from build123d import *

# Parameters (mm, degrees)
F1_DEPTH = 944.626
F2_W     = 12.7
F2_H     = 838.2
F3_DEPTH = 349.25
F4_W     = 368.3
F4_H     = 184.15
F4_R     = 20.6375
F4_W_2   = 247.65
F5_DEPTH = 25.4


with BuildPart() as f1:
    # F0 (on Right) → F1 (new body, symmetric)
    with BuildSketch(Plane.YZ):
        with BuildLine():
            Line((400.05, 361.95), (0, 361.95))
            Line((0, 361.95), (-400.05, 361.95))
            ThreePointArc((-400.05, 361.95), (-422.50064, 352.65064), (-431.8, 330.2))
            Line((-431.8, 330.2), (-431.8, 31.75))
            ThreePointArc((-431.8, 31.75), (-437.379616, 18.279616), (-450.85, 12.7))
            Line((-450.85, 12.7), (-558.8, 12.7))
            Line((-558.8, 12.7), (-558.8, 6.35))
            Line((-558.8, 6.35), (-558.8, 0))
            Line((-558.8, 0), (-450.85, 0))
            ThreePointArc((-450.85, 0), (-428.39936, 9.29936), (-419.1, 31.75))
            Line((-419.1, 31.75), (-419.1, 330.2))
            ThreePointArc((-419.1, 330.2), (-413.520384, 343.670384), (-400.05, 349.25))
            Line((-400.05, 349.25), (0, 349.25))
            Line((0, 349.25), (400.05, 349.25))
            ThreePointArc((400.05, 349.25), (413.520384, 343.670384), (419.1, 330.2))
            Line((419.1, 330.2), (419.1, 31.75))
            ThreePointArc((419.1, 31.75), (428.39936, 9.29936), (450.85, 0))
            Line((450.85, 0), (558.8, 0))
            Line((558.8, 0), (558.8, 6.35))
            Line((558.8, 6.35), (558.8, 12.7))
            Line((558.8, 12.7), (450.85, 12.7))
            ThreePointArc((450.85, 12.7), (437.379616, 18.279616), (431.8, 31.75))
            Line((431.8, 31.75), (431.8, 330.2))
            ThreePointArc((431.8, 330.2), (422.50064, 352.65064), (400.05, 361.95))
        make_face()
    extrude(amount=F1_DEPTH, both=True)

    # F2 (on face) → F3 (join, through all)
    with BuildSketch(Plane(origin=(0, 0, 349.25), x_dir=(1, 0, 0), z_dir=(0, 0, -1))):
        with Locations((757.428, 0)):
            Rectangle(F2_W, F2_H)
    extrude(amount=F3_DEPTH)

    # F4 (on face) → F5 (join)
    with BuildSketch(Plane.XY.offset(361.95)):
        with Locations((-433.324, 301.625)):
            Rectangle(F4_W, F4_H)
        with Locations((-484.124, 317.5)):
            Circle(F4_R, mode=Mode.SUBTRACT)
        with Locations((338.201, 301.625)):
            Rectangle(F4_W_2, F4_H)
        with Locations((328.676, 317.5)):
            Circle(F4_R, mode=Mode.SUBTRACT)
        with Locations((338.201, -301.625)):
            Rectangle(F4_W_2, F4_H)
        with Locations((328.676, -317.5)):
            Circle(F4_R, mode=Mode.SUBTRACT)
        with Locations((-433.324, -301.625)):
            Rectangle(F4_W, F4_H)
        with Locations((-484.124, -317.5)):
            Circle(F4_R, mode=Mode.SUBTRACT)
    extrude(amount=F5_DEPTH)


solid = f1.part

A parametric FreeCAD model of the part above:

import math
import FreeCAD as App
import Part
import Sketcher
Q = App.Units.Quantity

doc = App.newDocument("Part")
params = doc.addObject("Spreadsheet::Sheet", "Params")
for row, (alias, value) in enumerate([
    ("sketch1_radius", "1.25 in"),
    ("sketch1_radius2", "0.75 in"),
    ("sketch1_width", "31.5 in"),
    ("pad1_length", "74.38 in"),
    ("sketch2_height", "33 in"),
    ("sketch2_width", "0.5 in"),
    ("pad2_length", "13.75 in"),
    ("sketch3_diameter", "1.625 in"),
    ("sketch3_width", "14.5 in"),
    ("sketch3_width2", "9.75 in"),
    ("sketch3_height", "7.25 in"),
    ("pad3_length", "1 in"),
], start=1):
    params.set(f"A{row}", alias)
    params.set(f"B{row}", "=" + value)
    params.setAlias(f"B{row}", alias)

body = doc.addObject("PartDesign::Body", "Body")

sketch1 = body.newObject("Sketcher::SketchObject", "Sketch")
sketch1.AttachmentSupport = (doc.getObject("YZ_Plane"), [""])
sketch1.MapMode = "FlatFace"
sketch1.addGeometry(Part.LineSegment(App.Vector(400, 362, 0), App.Vector(-400, 362, 0)), False)
sketch1.addGeometry(Part.ArcOfCircle(Part.Circle(App.Vector(-400, 330, 0), App.Vector(0, 0, 1), 32), math.radians(90), math.radians(180)), False)
sketch1.addGeometry(Part.LineSegment(App.Vector(-432, 330, 0), App.Vector(-432, 32, 0)), False)
sketch1.addGeometry(Part.ArcOfCircle(Part.Circle(App.Vector(-451, 32, 0), App.Vector(0, 0, 1), 19), math.radians(-90), math.radians(0)), False)
sketch1.addGeometry(Part.LineSegment(App.Vector(-451, 13, 0), App.Vector(-559, 13, 0)), False)
sketch1.addGeometry(Part.LineSegment(App.Vector(-559, 13, 0), App.Vector(-559, 0, 0)), False)
sketch1.addGeometry(Part.LineSegment(App.Vector(-559, 0, 0), App.Vector(-451, 0, 0)), False)
sketch1.addGeometry(Part.ArcOfCircle(Part.Circle(App.Vector(-451, 32, 0), App.Vector(0, 0, 1), 32), math.radians(-90), math.radians(0)), False)
sketch1.addGeometry(Part.LineSegment(App.Vector(-419, 32, 0), App.Vector(-419, 330, 0)), False)
sketch1.addGeometry(Part.ArcOfCircle(Part.Circle(App.Vector(-400, 330, 0), App.Vector(0, 0, 1), 19), math.radians(90), math.radians(180)), False)
sketch1.addGeometry(Part.LineSegment(App.Vector(-400, 349, 0), App.Vector(400, 349, 0)), False)
sketch1.addGeometry(Part.ArcOfCircle(Part.Circle(App.Vector(400, 330, 0), App.Vector(0, 0, 1), 19), math.radians(0), math.radians(90)), False)
sketch1.addGeometry(Part.LineSegment(App.Vector(419, 330, 0), App.Vector(419, 32, 0)), False)
sketch1.addGeometry(Part.ArcOfCircle(Part.Circle(App.Vector(451, 32, 0), App.Vector(0, 0, 1), 32), math.radians(-180), math.radians(-90)), False)
sketch1.addGeometry(Part.LineSegment(App.Vector(451, 0, 0), App.Vector(559, 0, 0)), False)
sketch1.addGeometry(Part.LineSegment(App.Vector(559, 0, 0), App.Vector(559, 13, 0)), False)
sketch1.addGeometry(Part.LineSegment(App.Vector(559, 13, 0), App.Vector(451, 13, 0)), False)
sketch1.addGeometry(Part.ArcOfCircle(Part.Circle(App.Vector(451, 32, 0), App.Vector(0, 0, 1), 19), math.radians(-180), math.radians(-90)), False)
sketch1.addGeometry(Part.LineSegment(App.Vector(432, 32, 0), App.Vector(432, 330, 0)), False)
sketch1.addGeometry(Part.ArcOfCircle(Part.Circle(App.Vector(400, 330, 0), App.Vector(0, 0, 1), 32), math.radians(0), math.radians(90)), False)
sketch1.addConstraint(Sketcher.Constraint("Tangent", 0, 2, 1, 1))
sketch1.addConstraint(Sketcher.Constraint("Tangent", 1, 2, 2, 1))
sketch1.addConstraint(Sketcher.Constraint("Tangent", 2, 2, 3, 2))
sketch1.addConstraint(Sketcher.Constraint("Tangent", 3, 1, 4, 1))
sketch1.addConstraint(Sketcher.Constraint("Coincident", 4, 2, 5, 1))
sketch1.addConstraint(Sketcher.Constraint("Coincident", 5, 2, 6, 1))
sketch1.addConstraint(Sketcher.Constraint("Tangent", 6, 2, 7, 1))
sketch1.addConstraint(Sketcher.Constraint("Tangent", 7, 2, 8, 1))
sketch1.addConstraint(Sketcher.Constraint("Tangent", 8, 2, 9, 2))
sketch1.addConstraint(Sketcher.Constraint("Tangent", 9, 1, 10, 1))
sketch1.addConstraint(Sketcher.Constraint("Tangent", 10, 2, 11, 2))
sketch1.addConstraint(Sketcher.Constraint("Tangent", 11, 1, 12, 1))
sketch1.addConstraint(Sketcher.Constraint("Tangent", 12, 2, 13, 1))
sketch1.addConstraint(Sketcher.Constraint("Tangent", 13, 2, 14, 1))
sketch1.addConstraint(Sketcher.Constraint("Coincident", 14, 2, 15, 1))
sketch1.addConstraint(Sketcher.Constraint("Coincident", 15, 2, 16, 1))
sketch1.addConstraint(Sketcher.Constraint("Tangent", 16, 2, 17, 2))
sketch1.addConstraint(Sketcher.Constraint("Tangent", 17, 1, 18, 1))
sketch1.addConstraint(Sketcher.Constraint("Tangent", 18, 2, 19, 1))
sketch1.addConstraint(Sketcher.Constraint("Tangent", 19, 2, 0, 1))
sketch1.addConstraint(Sketcher.Constraint("Horizontal", 0))
sketch1.addConstraint(Sketcher.Constraint("Vertical", 2))
sketch1.addConstraint(Sketcher.Constraint("Horizontal", 4))
sketch1.addConstraint(Sketcher.Constraint("Vertical", 5))
sketch1.addConstraint(Sketcher.Constraint("Horizontal", 6))
sketch1.addConstraint(Sketcher.Constraint("Vertical", 8))
sketch1.addConstraint(Sketcher.Constraint("Horizontal", 10))
sketch1.addConstraint(Sketcher.Constraint("Vertical", 12))
sketch1.addConstraint(Sketcher.Constraint("Horizontal", 14))
sketch1.addConstraint(Sketcher.Constraint("Vertical", 15))
sketch1.addConstraint(Sketcher.Constraint("Horizontal", 16))
sketch1.addConstraint(Sketcher.Constraint("Vertical", 18))
sketch1.addConstraint(Sketcher.Constraint("Coincident", 7, 3, 3, 3))
sketch1.addConstraint(Sketcher.Constraint("Coincident", 9, 3, 1, 3))
sketch1.addConstraint(Sketcher.Constraint("Coincident", 17, 3, 13, 3))
sketch1.addConstraint(Sketcher.Constraint("Coincident", 19, 3, 11, 3))
sketch1.addConstraint(Sketcher.Constraint("Equal", 1, 7))
sketch1.addConstraint(Sketcher.Constraint("Equal", 9, 11))
sketch1.addConstraint(Sketcher.Constraint("Equal", 7, 13))
sketch1.addConstraint(Sketcher.Constraint("Symmetric", 6, 2, 13, 2, -1, 1))
sketch1.addConstraint(Sketcher.Constraint("Symmetric", 5, 2, 14, 2, -2))
sketch1.addConstraint(Sketcher.Constraint("Radius", 1, Q("1.25 in")))
sketch1.addConstraint(Sketcher.Constraint("Radius", 3, Q("0.75 in")))
sketch1.addConstraint(Sketcher.Constraint("DistanceX", 0, 2, 0, 1, Q("31.5 in")))
sketch1.addConstraint(Sketcher.Constraint("DistanceY", -1, 1, 1, 3, Q("13 in")))
sketch1.addConstraint(Sketcher.Constraint("DistanceX", 4, 2, -1, 1, Q("22 in")))
sketch1.setExpression("Constraints[41]", "Params.sketch1_radius")
sketch1.setExpression("Constraints[42]", "Params.sketch1_radius2")
sketch1.setExpression("Constraints[43]", "Params.sketch1_width")
pad1 = body.newObject("PartDesign::Pad", "Pad")
pad1.Profile = sketch1
pad1.setExpression("Length", "Params.pad1_length")
pad1.Midplane = True

sketch2 = body.newObject("Sketcher::SketchObject", "Sketch001")
sketch2.AttachmentSupport = (doc.getObject("XY_Plane"), [""])
sketch2.MapMode = "FlatFace"
sketch2.AttachmentOffset = App.Placement(App.Vector(0, 0, 13.75 * 25.4), App.Rotation())
sketch2.addGeometry(Part.LineSegment(App.Vector(751, -419, 0), App.Vector(751, 419, 0)), False)
sketch2.addGeometry(Part.LineSegment(App.Vector(751, 419, 0), App.Vector(764, 419, 0)), False)
sketch2.addGeometry(Part.LineSegment(App.Vector(764, 419, 0), App.Vector(764, -419, 0)), False)
sketch2.addGeometry(Part.LineSegment(App.Vector(764, -419, 0), App.Vector(751, -419, 0)), False)
sketch2.addConstraint(Sketcher.Constraint("Coincident", 0, 2, 1, 1))
sketch2.addConstraint(Sketcher.Constraint("Coincident", 1, 2, 2, 1))
sketch2.addConstraint(Sketcher.Constraint("Coincident", 2, 2, 3, 1))
sketch2.addConstraint(Sketcher.Constraint("Coincident", 3, 2, 0, 1))
sketch2.addConstraint(Sketcher.Constraint("Vertical", 0))
sketch2.addConstraint(Sketcher.Constraint("Horizontal", 1))
sketch2.addConstraint(Sketcher.Constraint("Vertical", 2))
sketch2.addConstraint(Sketcher.Constraint("Horizontal", 3))
sketch2.addConstraint(Sketcher.Constraint("DistanceY", 0, 1, 0, 2, Q("33 in")))
sketch2.addConstraint(Sketcher.Constraint("DistanceX", 1, 1, 1, 2, Q("0.5 in")))
sketch2.addConstraint(Sketcher.Constraint("DistanceY", -1, 1, 0, 2, Q("16.5 in")))
sketch2.addConstraint(Sketcher.Constraint("DistanceX", -1, 1, 0, 2, Q("29.57 in")))
sketch2.setExpression("Constraints[8]", "Params.sketch2_height")
sketch2.setExpression("Constraints[9]", "Params.sketch2_width")
pad2 = body.newObject("PartDesign::Pad", "Pad001")
pad2.Profile = sketch2
pad2.setExpression("Length", "Params.pad2_length")
pad2.Reversed = True

sketch3 = body.newObject("Sketcher::SketchObject", "Sketch002")
sketch3.AttachmentSupport = (doc.getObject("XY_Plane"), [""])
sketch3.MapMode = "FlatFace"
sketch3.AttachmentOffset = App.Placement(App.Vector(0, 0, 14.25 * 25.4), App.Rotation())
sketch3.addGeometry(Part.LineSegment(App.Vector(-617, 394, 0), App.Vector(-617, 210, 0)), False)
sketch3.addGeometry(Part.LineSegment(App.Vector(-617, 210, 0), App.Vector(-249, 210, 0)), False)
sketch3.addGeometry(Part.LineSegment(App.Vector(-249, 210, 0), App.Vector(-249, 394, 0)), False)
sketch3.addGeometry(Part.LineSegment(App.Vector(-249, 394, 0), App.Vector(-617, 394, 0)), False)
sketch3.addGeometry(Part.Circle(App.Vector(-484, 318, 0), App.Vector(0, 0, 1), 21), False)
sketch3.addGeometry(Part.LineSegment(App.Vector(214, 394, 0), App.Vector(214, 210, 0)), False)
sketch3.addGeometry(Part.LineSegment(App.Vector(214, 210, 0), App.Vector(462, 210, 0)), False)
sketch3.addGeometry(Part.LineSegment(App.Vector(462, 210, 0), App.Vector(462, 394, 0)), False)
sketch3.addGeometry(Part.LineSegment(App.Vector(462, 394, 0), App.Vector(214, 394, 0)), False)
sketch3.addGeometry(Part.Circle(App.Vector(329, 318, 0), App.Vector(0, 0, 1), 21), False)
sketch3.addGeometry(Part.LineSegment(App.Vector(214, -210, 0), App.Vector(214, -394, 0)), False)
sketch3.addGeometry(Part.LineSegment(App.Vector(214, -394, 0), App.Vector(462, -394, 0)), False)
sketch3.addGeometry(Part.LineSegment(App.Vector(462, -394, 0), App.Vector(462, -210, 0)), False)
sketch3.addGeometry(Part.LineSegment(App.Vector(462, -210, 0), App.Vector(214, -210, 0)), False)
sketch3.addGeometry(Part.Circle(App.Vector(329, -318, 0), App.Vector(0, 0, 1), 21), False)
sketch3.addGeometry(Part.LineSegment(App.Vector(-617, -210, 0), App.Vector(-617, -394, 0)), False)
sketch3.addGeometry(Part.LineSegment(App.Vector(-617, -394, 0), App.Vector(-249, -394, 0)), False)
sketch3.addGeometry(Part.LineSegment(App.Vector(-249, -394, 0), App.Vector(-249, -210, 0)), False)
sketch3.addGeometry(Part.LineSegment(App.Vector(-249, -210, 0), App.Vector(-617, -210, 0)), False)
sketch3.addGeometry(Part.Circle(App.Vector(-484, -318, 0), App.Vector(0, 0, 1), 21), False)
sketch3.addConstraint(Sketcher.Constraint("Coincident", 0, 2, 1, 1))
sketch3.addConstraint(Sketcher.Constraint("Coincident", 1, 2, 2, 1))
sketch3.addConstraint(Sketcher.Constraint("Coincident", 2, 2, 3, 1))
sketch3.addConstraint(Sketcher.Constraint("Coincident", 3, 2, 0, 1))
sketch3.addConstraint(Sketcher.Constraint("Coincident", 5, 2, 6, 1))
sketch3.addConstraint(Sketcher.Constraint("Coincident", 6, 2, 7, 1))
sketch3.addConstraint(Sketcher.Constraint("Coincident", 7, 2, 8, 1))
sketch3.addConstraint(Sketcher.Constraint("Coincident", 8, 2, 5, 1))
sketch3.addConstraint(Sketcher.Constraint("Coincident", 10, 2, 11, 1))
sketch3.addConstraint(Sketcher.Constraint("Coincident", 11, 2, 12, 1))
sketch3.addConstraint(Sketcher.Constraint("Coincident", 12, 2, 13, 1))
sketch3.addConstraint(Sketcher.Constraint("Coincident", 13, 2, 10, 1))
sketch3.addConstraint(Sketcher.Constraint("Coincident", 15, 2, 16, 1))
sketch3.addConstraint(Sketcher.Constraint("Coincident", 16, 2, 17, 1))
sketch3.addConstraint(Sketcher.Constraint("Coincident", 17, 2, 18, 1))
sketch3.addConstraint(Sketcher.Constraint("Coincident", 18, 2, 15, 1))
sketch3.addConstraint(Sketcher.Constraint("Vertical", 0))
sketch3.addConstraint(Sketcher.Constraint("Horizontal", 1))
sketch3.addConstraint(Sketcher.Constraint("Vertical", 2))
sketch3.addConstraint(Sketcher.Constraint("Horizontal", 3))
sketch3.addConstraint(Sketcher.Constraint("Vertical", 5))
sketch3.addConstraint(Sketcher.Constraint("Horizontal", 6))
sketch3.addConstraint(Sketcher.Constraint("Vertical", 7))
sketch3.addConstraint(Sketcher.Constraint("Horizontal", 8))
sketch3.addConstraint(Sketcher.Constraint("Vertical", 10))
sketch3.addConstraint(Sketcher.Constraint("Horizontal", 11))
sketch3.addConstraint(Sketcher.Constraint("Vertical", 12))
sketch3.addConstraint(Sketcher.Constraint("Horizontal", 13))
sketch3.addConstraint(Sketcher.Constraint("Vertical", 15))
sketch3.addConstraint(Sketcher.Constraint("Horizontal", 16))
sketch3.addConstraint(Sketcher.Constraint("Vertical", 17))
sketch3.addConstraint(Sketcher.Constraint("Horizontal", 18))
sketch3.addConstraint(Sketcher.Constraint("Equal", 4, 9))
sketch3.addConstraint(Sketcher.Constraint("Equal", 9, 14))
sketch3.addConstraint(Sketcher.Constraint("Equal", 14, 19))
sketch3.addConstraint(Sketcher.Constraint("Symmetric", 9, 3, 14, 3, -1))
sketch3.addConstraint(Sketcher.Constraint("Symmetric", 4, 3, 19, 3, -1))
sketch3.addConstraint(Sketcher.Constraint("Symmetric", 8, 2, 10, 2, -1))
sketch3.addConstraint(Sketcher.Constraint("Symmetric", 6, 2, 12, 2, -1))
sketch3.addConstraint(Sketcher.Constraint("Symmetric", 3, 2, 15, 2, -1))
sketch3.addConstraint(Sketcher.Constraint("Symmetric", 1, 2, 17, 2, -1))
sketch3.addConstraint(Sketcher.Constraint("Horizontal", 4, 3, 9, 3))
sketch3.addConstraint(Sketcher.Constraint("Horizontal", 1, 2, 5, 2))
sketch3.addConstraint(Sketcher.Constraint("Horizontal", 3, 2, 7, 2))
sketch3.addConstraint(Sketcher.Constraint("Diameter", 4, Q("1.625 in")))
sketch3.addConstraint(Sketcher.Constraint("DistanceX", 1, 1, 1, 2, Q("14.5 in")))
sketch3.addConstraint(Sketcher.Constraint("DistanceX", 4, 3, 9, 3, Q("32 in")))
sketch3.addConstraint(Sketcher.Constraint("DistanceY", 14, 3, 9, 3, Q("25 in")))
sketch3.addConstraint(Sketcher.Constraint("DistanceY", 4, 3, 2, 2, Q("3 in")))
sketch3.addConstraint(Sketcher.Constraint("DistanceX", 1, 2, 6, 2, Q("28 in")))
sketch3.addConstraint(Sketcher.Constraint("DistanceX", 6, 1, 6, 2, Q("9.75 in")))
sketch3.addConstraint(Sketcher.Constraint("DistanceY", 0, 2, 0, 1, Q("7.25 in")))
sketch3.addConstraint(Sketcher.Constraint("DistanceX", 5, 2, 9, 3, Q("4.5 in")))
sketch3.addConstraint(Sketcher.Constraint("DistanceX", 4, 3, -1, 1, Q("19.06 in")))
sketch3.setExpression("Constraints[44]", "Params.sketch3_diameter")
sketch3.setExpression("Constraints[45]", "Params.sketch3_width")
sketch3.setExpression("Constraints[50]", "Params.sketch3_width2")
sketch3.setExpression("Constraints[51]", "Params.sketch3_height")
pad3 = body.newObject("PartDesign::Pad", "Pad002")
pad3.Profile = sketch3
pad3.setExpression("Length", "Params.pad3_length")

doc.recompute()
